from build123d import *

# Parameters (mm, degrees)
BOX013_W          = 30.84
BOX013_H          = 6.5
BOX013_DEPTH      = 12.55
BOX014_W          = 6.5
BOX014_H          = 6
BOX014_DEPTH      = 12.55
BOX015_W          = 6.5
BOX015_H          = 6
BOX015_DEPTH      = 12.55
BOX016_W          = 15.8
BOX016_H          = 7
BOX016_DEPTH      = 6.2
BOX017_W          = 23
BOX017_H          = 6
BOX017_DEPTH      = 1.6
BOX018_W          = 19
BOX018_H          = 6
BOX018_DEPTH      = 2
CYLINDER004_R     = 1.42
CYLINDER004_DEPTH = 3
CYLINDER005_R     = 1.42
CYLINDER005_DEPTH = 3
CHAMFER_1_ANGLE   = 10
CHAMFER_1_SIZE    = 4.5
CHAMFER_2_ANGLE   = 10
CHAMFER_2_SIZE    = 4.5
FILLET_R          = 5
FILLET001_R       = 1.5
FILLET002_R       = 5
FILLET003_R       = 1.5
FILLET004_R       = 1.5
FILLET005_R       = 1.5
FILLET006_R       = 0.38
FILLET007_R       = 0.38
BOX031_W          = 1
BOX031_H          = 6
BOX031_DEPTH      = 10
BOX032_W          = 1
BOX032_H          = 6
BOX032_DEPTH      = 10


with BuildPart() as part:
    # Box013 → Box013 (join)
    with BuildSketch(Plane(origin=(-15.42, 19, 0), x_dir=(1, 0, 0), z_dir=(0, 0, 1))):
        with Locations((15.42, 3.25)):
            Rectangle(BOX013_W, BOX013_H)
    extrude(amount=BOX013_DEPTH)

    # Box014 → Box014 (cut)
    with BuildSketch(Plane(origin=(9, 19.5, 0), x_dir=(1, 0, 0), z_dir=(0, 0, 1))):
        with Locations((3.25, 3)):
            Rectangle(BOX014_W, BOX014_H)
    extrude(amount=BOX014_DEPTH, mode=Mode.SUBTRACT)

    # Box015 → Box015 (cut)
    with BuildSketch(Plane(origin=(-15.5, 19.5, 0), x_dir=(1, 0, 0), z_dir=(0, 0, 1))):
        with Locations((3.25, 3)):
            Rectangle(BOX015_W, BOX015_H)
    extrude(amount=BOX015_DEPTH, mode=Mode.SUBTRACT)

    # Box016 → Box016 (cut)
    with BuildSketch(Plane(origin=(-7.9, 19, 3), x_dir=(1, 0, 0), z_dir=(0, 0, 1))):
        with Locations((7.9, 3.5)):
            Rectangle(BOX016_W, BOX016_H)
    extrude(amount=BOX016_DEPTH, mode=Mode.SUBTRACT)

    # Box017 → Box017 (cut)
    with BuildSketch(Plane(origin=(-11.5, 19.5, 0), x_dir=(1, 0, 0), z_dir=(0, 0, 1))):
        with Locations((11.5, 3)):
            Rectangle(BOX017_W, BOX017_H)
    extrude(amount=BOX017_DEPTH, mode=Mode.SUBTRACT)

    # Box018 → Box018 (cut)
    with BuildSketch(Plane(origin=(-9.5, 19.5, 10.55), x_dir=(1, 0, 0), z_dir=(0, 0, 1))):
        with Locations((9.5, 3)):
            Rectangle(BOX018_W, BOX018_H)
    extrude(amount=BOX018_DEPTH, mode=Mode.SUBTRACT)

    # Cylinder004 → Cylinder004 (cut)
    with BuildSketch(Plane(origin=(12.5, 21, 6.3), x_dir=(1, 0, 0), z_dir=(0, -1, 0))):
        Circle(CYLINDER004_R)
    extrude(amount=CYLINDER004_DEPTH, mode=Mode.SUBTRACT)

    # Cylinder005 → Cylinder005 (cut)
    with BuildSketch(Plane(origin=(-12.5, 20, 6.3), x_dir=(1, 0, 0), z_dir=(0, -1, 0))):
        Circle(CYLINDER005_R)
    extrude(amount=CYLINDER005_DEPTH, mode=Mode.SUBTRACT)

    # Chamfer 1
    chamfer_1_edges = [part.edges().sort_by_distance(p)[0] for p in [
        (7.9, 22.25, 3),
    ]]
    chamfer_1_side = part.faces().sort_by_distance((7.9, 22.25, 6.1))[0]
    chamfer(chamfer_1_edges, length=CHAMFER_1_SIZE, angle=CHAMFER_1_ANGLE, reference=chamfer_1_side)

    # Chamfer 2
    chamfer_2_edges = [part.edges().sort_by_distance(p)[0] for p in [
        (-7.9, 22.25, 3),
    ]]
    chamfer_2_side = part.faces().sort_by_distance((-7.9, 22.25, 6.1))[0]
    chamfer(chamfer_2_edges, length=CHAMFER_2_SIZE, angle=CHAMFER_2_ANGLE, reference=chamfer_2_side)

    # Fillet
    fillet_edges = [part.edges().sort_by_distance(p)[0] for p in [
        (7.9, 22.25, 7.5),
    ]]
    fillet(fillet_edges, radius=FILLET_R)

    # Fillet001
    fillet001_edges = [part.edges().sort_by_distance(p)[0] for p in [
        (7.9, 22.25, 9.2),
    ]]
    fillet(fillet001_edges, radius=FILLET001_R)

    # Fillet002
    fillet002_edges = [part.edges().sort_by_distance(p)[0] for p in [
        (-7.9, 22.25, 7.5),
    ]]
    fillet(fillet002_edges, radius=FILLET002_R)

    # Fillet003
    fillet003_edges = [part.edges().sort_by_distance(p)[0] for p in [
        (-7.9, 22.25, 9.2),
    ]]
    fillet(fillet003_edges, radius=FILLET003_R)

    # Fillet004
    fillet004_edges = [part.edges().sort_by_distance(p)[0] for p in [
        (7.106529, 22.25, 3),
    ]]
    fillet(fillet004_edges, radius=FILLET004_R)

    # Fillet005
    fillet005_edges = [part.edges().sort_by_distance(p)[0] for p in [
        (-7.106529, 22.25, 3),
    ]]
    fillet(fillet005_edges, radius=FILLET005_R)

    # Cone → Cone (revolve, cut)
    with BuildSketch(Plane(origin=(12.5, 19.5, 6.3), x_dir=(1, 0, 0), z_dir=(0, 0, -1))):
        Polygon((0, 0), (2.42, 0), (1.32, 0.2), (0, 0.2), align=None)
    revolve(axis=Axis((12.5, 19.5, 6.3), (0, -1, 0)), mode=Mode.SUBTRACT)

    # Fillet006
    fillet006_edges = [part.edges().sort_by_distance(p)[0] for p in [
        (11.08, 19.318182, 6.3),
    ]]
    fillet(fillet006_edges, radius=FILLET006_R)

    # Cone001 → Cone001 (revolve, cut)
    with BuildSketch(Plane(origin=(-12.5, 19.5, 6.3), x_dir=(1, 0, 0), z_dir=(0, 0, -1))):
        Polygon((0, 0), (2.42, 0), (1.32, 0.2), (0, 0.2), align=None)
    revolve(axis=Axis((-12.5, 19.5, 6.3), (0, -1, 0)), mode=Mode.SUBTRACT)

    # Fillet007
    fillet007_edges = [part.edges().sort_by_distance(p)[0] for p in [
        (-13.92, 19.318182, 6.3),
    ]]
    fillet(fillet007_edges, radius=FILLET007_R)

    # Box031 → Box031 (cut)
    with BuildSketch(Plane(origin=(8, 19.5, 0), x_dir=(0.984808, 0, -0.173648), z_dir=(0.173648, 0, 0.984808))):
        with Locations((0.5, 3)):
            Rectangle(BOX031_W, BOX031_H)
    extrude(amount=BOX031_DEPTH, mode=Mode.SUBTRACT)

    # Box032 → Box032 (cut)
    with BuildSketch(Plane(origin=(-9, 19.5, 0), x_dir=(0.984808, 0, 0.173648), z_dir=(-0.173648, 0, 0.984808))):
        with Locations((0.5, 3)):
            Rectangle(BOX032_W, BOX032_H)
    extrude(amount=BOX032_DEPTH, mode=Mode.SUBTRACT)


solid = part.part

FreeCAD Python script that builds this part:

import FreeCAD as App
import Part
import Sketcher


def edges_at(feature, points):
    """Names of the edges that pass closest to the given points."""
    edges = feature.Shape.Edges
    near = lambda p: min(range(len(edges)), key=lambda i: edges[i].distToShape(Part.Vertex(*p))[0])
    return sorted({f"Edge{near(p) + 1}" for p in points})


def add_polygon(sketch, points):
    """Adds a closed chain of lines whose ends are joined by coincident constraints."""
    first, n = sketch.GeometryCount, len(points)
    for a, b in zip(points, points[1:] + points[:1]):
        sketch.addGeometry(Part.LineSegment(App.Vector(*a, 0), App.Vector(*b, 0)), False)
    for i in range(n):
        sketch.addConstraint(Sketcher.Constraint("Coincident", first + i, 2, first + (i + 1) % n, 1))

doc = App.newDocument("Part")
body = doc.addObject("PartDesign::Body", "Body")

# Sketch on XY plane
sketch1 = body.newObject("Sketcher::SketchObject", "Sketch")
sketch1.AttachmentSupport = (doc.getObject("XY_Plane"), [""])
sketch1.MapMode = "FlatFace"
add_polygon(sketch1, [(-15.42, 25.5), (-15.42, 19), (15.42, 19), (15.42, 25.5)])  # lines 0-3
sketch1.addConstraint([
    Sketcher.Constraint("Vertical", 0),
    Sketcher.Constraint("Horizontal", 1),
    Sketcher.Constraint("Vertical", 2),
    Sketcher.Constraint("Horizontal", 3),
    Sketcher.Constraint("DistanceY", 0, 2, 0, 1, 6.5),
    Sketcher.Constraint("DistanceY", -1, 1, 0, 2, 19.0),
    Sketcher.Constraint("DistanceX", 1, 1, 1, 2, 30.84),
    Sketcher.Constraint("DistanceX", 0, 2, -1, 1, 15.42),
])
pad1 = body.newObject("PartDesign::Pad", "Pad")
pad1.Profile = sketch1
pad1.Length = 12.55

# Sketch on XY plane
sketch2 = body.newObject("Sketcher::SketchObject", "Sketch001")
sketch2.AttachmentSupport = (doc.getObject("XY_Plane"), [""])
sketch2.MapMode = "FlatFace"
add_polygon(sketch2, [(9, 25.5), (9, 19.5), (15.5, 19.5), (15.5, 25.5)])  # lines 0-3
sketch2.addConstraint([
    Sketcher.Constraint("Vertical", 0),
    Sketcher.Constraint("Horizontal", 1),
    Sketcher.Constraint("Vertical", 2),
    Sketcher.Constraint("Horizontal", 3),
    Sketcher.Constraint("DistanceY", 0, 2, 0, 1, 6.0),
    Sketcher.Constraint("DistanceX", 1, 1, 1, 2, 6.5),
    Sketcher.Constraint("DistanceX", -1, 1, 0, 2, 9.0),
    Sketcher.Constraint("DistanceY", -1, 1, 0, 2, 19.5),
])
pocket1 = body.newObject("PartDesign::Pocket", "Pocket")
pocket1.Profile = sketch2
pocket1.Length = 12.55
pocket1.Reversed = True

# Sketch on XY plane
sketch3 = body.newObject("Sketcher::SketchObject", "Sketch002")
sketch3.AttachmentSupport = (doc.getObject("XY_Plane"), [""])
sketch3.MapMode = "FlatFace"
add_polygon(sketch3, [(-15.5, 25.5), (-15.5, 19.5), (-9, 19.5), (-9, 25.5)])  # lines 0-3
sketch3.addConstraint([
    Sketcher.Constraint("Vertical", 0),
    Sketcher.Constraint("Horizontal", 1),
    Sketcher.Constraint("Vertical", 2),
    Sketcher.Constraint("Horizontal", 3),
    Sketcher.Constraint("DistanceY", 0, 2, 0, 1, 6.0),
    Sketcher.Constraint("DistanceX", 1, 1, 1, 2, 6.5),
    Sketcher.Constraint("DistanceX", 1, 2, -1, 1, 9.0),
    Sketcher.Constraint("DistanceY", -1, 1, 0, 2, 19.5),
])
pocket2 = body.newObject("PartDesign::Pocket", "Pocket001")
pocket2.Profile = sketch3
pocket2.Length = 12.55
pocket2.Reversed = True

# Sketch on XY plane
sketch4 = body.newObject("Sketcher::SketchObject", "Sketch003")
sketch4.AttachmentSupport = (doc.getObject("XY_Plane"), [""])
sketch4.MapMode = "FlatFace"
sketch4.AttachmentOffset = App.Placement(App.Vector(0, 0, 3), App.Rotation())
add_polygon(sketch4, [(-7.9, 26), (-7.9, 19), (7.9, 19), (7.9, 26)])  # lines 0-3
sketch4.addConstraint([
    Sketcher.Constraint("Vertical", 0),
    Sketcher.Constraint("Horizontal", 1),
    Sketcher.Constraint("Vertical", 2),
    Sketcher.Constraint("Horizontal", 3),
    Sketcher.Constraint("DistanceY", 0, 2, 0, 1, 7.0),
    Sketcher.Constraint("DistanceX", 1, 1, 1, 2, 15.8),
    Sketcher.Constraint("DistanceY", -1, 1, 0, 2, 19.0),
    Sketcher.Constraint("DistanceX", 0, 2, -1, 1, 7.9),
])
pocket3 = body.newObject("PartDesign::Pocket", "Pocket002")
pocket3.Profile = sketch4
pocket3.Length = 6.2
pocket3.Reversed = True

# Sketch on XY plane
sketch5 = body.newObject("Sketcher::SketchObject", "Sketch004")
sketch5.AttachmentSupport = (doc.getObject("XY_Plane"), [""])
sketch5.MapMode = "FlatFace"
add_polygon(sketch5, [(-11.5, 25.5), (-11.5, 19.5), (11.5, 19.5), (11.5, 25.5)])  # lines 0-3
sketch5.addConstraint([
    Sketcher.Constraint("Vertical", 0),
    Sketcher.Constraint("Horizontal", 1),
    Sketcher.Constraint("Vertical", 2),
    Sketcher.Constraint("Horizontal", 3),
    Sketcher.Constraint("DistanceX", 1, 1, 1, 2, 23.0),
    Sketcher.Constraint("DistanceY", 0, 2, 0, 1, 6.0),
    Sketcher.Constraint("DistanceX", 0, 2, -1, 1, 11.5),
    Sketcher.Constraint("DistanceY", -1, 1, 0, 2, 19.5),
])
pocket4 = body.newObject("PartDesign::Pocket", "Pocket003")
pocket4.Profile = sketch5
pocket4.Length = 1.6
pocket4.Reversed = True

# Sketch on XY plane
sketch6 = body.newObject("Sketcher::SketchObject", "Sketch005")
sketch6.AttachmentSupport = (doc.getObject("XY_Plane"), [""])
sketch6.MapMode = "FlatFace"
sketch6.AttachmentOffset = App.Placement(App.Vector(0, 0, 10.55), App.Rotation())
add_polygon(sketch6, [(-9.5, 25.5), (-9.5, 19.5), (9.5, 19.5), (9.5, 25.5)])  # lines 0-3
sketch6.addConstraint([
    Sketcher.Constraint("Vertical", 0),
    Sketcher.Constraint("Horizontal", 1),
    Sketcher.Constraint("Vertical", 2),
    Sketcher.Constraint("Horizontal", 3),
    Sketcher.Constraint("DistanceX", 1, 1, 1, 2, 19.0),
    Sketcher.Constraint("DistanceY", 0, 2, 0, 1, 6.0),
    Sketcher.Constraint("DistanceX", 0, 2, -1, 1, 9.5),
    Sketcher.Constraint("DistanceY", -1, 1, 0, 2, 19.5),
])
pocket5 = body.newObject("PartDesign::Pocket", "Pocket004")
pocket5.Profile = sketch6
pocket5.Length = 2
pocket5.Reversed = True

# Sketch on XZ plane
sketch7 = body.newObject("Sketcher::SketchObject", "Sketch006")
sketch7.AttachmentSupport = (doc.getObject("XZ_Plane"), [""])
sketch7.MapMode = "FlatFace"
sketch7.AttachmentOffset = App.Placement(App.Vector(0, 0, -21), App.Rotation())
sketch7.addGeometry(Part.Circle(App.Vector(12.5, 6.3, 0), App.Vector(0, 0, 1), 1.42), False)
sketch7.addConstraint([
    Sketcher.Constraint("Diameter", 0, 2.84),
    Sketcher.Constraint("DistanceX", -1, 1, 0, 3, 12.5),
    Sketcher.Constraint("DistanceY", -1, 1, 0, 3, 6.3),
])
pocket6 = body.newObject("PartDesign::Pocket", "Pocket005")
pocket6.Profile = sketch7
pocket6.Length = 3
pocket6.Reversed = True

# Sketch on XZ plane
sketch8 = body.newObject("Sketcher::SketchObject", "Sketch007")
sketch8.AttachmentSupport = (doc.getObject("XZ_Plane"), [""])
sketch8.MapMode = "FlatFace"
sketch8.AttachmentOffset = App.Placement(App.Vector(0, 0, -20), App.Rotation())
sketch8.addGeometry(Part.Circle(App.Vector(-12.5, 6.3, 0), App.Vector(0, 0, 1), 1.42), False)
sketch8.addConstraint([
    Sketcher.Constraint("Diameter", 0, 2.84),
    Sketcher.Constraint("DistanceX", 0, 3, -1, 1, 12.5),
    Sketcher.Constraint("DistanceY", -1, 1, 0, 3, 6.3),
])
pocket7 = body.newObject("PartDesign::Pocket", "Pocket006")
pocket7.Profile = sketch8
pocket7.Length = 3
pocket7.Reversed = True
doc.recompute()

chamfer = body.newObject("PartDesign::Chamfer", "Chamfer")
chamfer.Base = (pocket7, edges_at(pocket7, [(7.9, 22.25, 3)]))
chamfer.ChamferType = "Distance and Angle"
chamfer.Size = 4.5
chamfer.Angle = 10
chamfer.FlipDirection = True
doc.recompute()

chamfer2 = body.newObject("PartDesign::Chamfer", "Chamfer001")
chamfer2.Base = (chamfer, edges_at(chamfer, [(-7.9, 22.25, 3)]))
chamfer2.ChamferType = "Distance and Angle"
chamfer2.Size = 4.5
chamfer2.Angle = 10
chamfer2.FlipDirection = True
doc.recompute()

fillet = body.newObject("PartDesign::Fillet", "Fillet")
fillet.Base = (chamfer2, edges_at(chamfer2, [(7.9, 22.25, 7.5)]))
fillet.Radius = 5
doc.recompute()

fillet2 = body.newObject("PartDesign::Fillet", "Fillet001")
fillet2.Base = (fillet, edges_at(fillet, [(7.9, 22.25, 9.2)]))
fillet2.Radius = 1.5
doc.recompute()

fillet3 = body.newObject("PartDesign::Fillet", "Fillet002")
fillet3.Base = (fillet2, edges_at(fillet2, [(-7.9, 22.25, 7.5)]))
fillet3.Radius = 5
doc.recompute()

fillet4 = body.newObject("PartDesign::Fillet", "Fillet003")
fillet4.Base = (fillet3, edges_at(fillet3, [(-7.9, 22.25, 9.2)]))
fillet4.Radius = 1.5
doc.recompute()

fillet5 = body.newObject("PartDesign::Fillet", "Fillet004")
fillet5.Base = (fillet4, edges_at(fillet4, [(7.107, 22.25, 3)]))
fillet5.Radius = 1.5
doc.recompute()

fillet6 = body.newObject("PartDesign::Fillet", "Fillet005")
fillet6.Base = (fillet5, edges_at(fillet5, [(-7.107, 22.25, 3)]))
fillet6.Radius = 1.5

# Sketch on XY plane
sketch9 = body.newObject("Sketcher::SketchObject", "Sketch008")
sketch9.AttachmentSupport = (doc.getObject("XY_Plane"), [""])
sketch9.MapMode = "FlatFace"
sketch9.AttachmentOffset = App.Placement(App.Vector(0, 0, 6.3), App.Rotation())
add_polygon(sketch9, [(12.5, 19.5), (14.92, 19.5), (13.82, 19.3), (12.5, 19.3)])  # lines 0-3
sketch9.addGeometry(Part.LineSegment(App.Vector(12.5, 19.5, 0), App.Vector(12.5, 19.3, 0)), True)  # axis
sketch9.addConstraint([
    Sketcher.Constraint("Horizontal", 0),
    Sketcher.Constraint("Horizontal", 2),
    Sketcher.Constraint("Vertical", 3),
    Sketcher.Constraint("Vertical", 4),
    Sketcher.Constraint("Coincident", 4, 1, 3, 2),
    Sketcher.Constraint("Horizontal", 1, 2, 4, 2),
    Sketcher.Constraint("DistanceY", 3, 1, 3, 2, 0.2),
    Sketcher.Constraint("DistanceX", 0, 1, 0, 2, 2.42),
    Sketcher.Constraint("DistanceX", 2, 2, 2, 1, 1.32),
    Sketcher.Constraint("DistanceY", -1, 1, 0, 2, 19.5),
    Sketcher.Constraint("DistanceX", -1, 1, 2, 2, 12.5),
])
groove = body.newObject("PartDesign::Groove", "Groove")
groove.Profile = sketch9
groove.ReferenceAxis = (sketch9, ["Axis0"])
groove.Angle = 360
doc.recompute()

fillet7 = body.newObject("PartDesign::Fillet", "Fillet006")
fillet7.Base = (groove, edges_at(groove, [(11.08, 19.318, 6.3)]))
fillet7.Radius = 0.38

# Sketch on XY plane
sketch10 = body.newObject("Sketcher::SketchObject", "Sketch009")
sketch10.AttachmentSupport = (doc.getObject("XY_Plane"), [""])
sketch10.MapMode = "FlatFace"
sketch10.AttachmentOffset = App.Placement(App.Vector(0, 0, 6.3), App.Rotation())
add_polygon(sketch10, [(-12.5, 19.5), (-10.08, 19.5), (-11.18, 19.3), (-12.5, 19.3)])  # lines 0-3
sketch10.addGeometry(Part.LineSegment(App.Vector(-12.5, 19.5, 0), App.Vector(-12.5, 19.3, 0)), True)  # axis
sketch10.addConstraint([
    Sketcher.Constraint("Horizontal", 0),
    Sketcher.Constraint("Horizontal", 2),
    Sketcher.Constraint("Vertical", 3),
    Sketcher.Constraint("Vertical", 4),
    Sketcher.Constraint("Coincident", 4, 1, 3, 2),
    Sketcher.Constraint("Horizontal", 1, 2, 4, 2),
    Sketcher.Constraint("DistanceY", 3, 1, 3, 2, 0.2),
    Sketcher.Constraint("DistanceX", 0, 1, 0, 2, 2.42),
    Sketcher.Constraint("DistanceX", 2, 2, 2, 1, 1.32),
    Sketcher.Constraint("DistanceY", -1, 1, 0, 2, 19.5),
    Sketcher.Constraint("DistanceX", 2, 2, -1, 1, 12.5),
])
groove2 = body.newObject("PartDesign::Groove", "Groove001")
groove2.Profile = sketch10
groove2.ReferenceAxis = (sketch10, ["Axis0"])
groove2.Angle = 360
doc.recompute()

fillet8 = body.newObject("PartDesign::Fillet", "Fillet007")
fillet8.Base = (groove2, edges_at(groove2, [(-13.92, 19.318, 6.3)]))
fillet8.Radius = 0.38

# Sketch on an angled plane
sketch11 = body.newObject("Sketcher::SketchObject", "Sketch010")
sketch11.Placement = App.Placement(App.Vector(8, 19.5, 0), App.Rotation(App.Vector(0.984807791, 0, -0.173647963), App.Vector(0, 1, 0), App.Vector(0.173647963, 0, 0.984807791), "ZXY"))
add_polygon(sketch11, [(0, 6), (0, 0), (1, 0), (1, 6)])  # lines 0-3
sketch11.addConstraint([
    Sketcher.Constraint("Vertical", 0),
    Sketcher.Constraint("Horizontal", 1),
    Sketcher.Constraint("Vertical", 2),
    Sketcher.Constraint("Horizontal", 3),
    Sketcher.Constraint("Coincident", 0, 2, -1, 1),
    Sketcher.Constraint("DistanceX", 1, 1, 1, 2, 1.0),
    Sketcher.Constraint("DistanceY", 0, 2, 0, 1, 6.0),
])
pocket8 = body.newObject("PartDesign::Pocket", "Pocket007")
pocket8.Profile = sketch11
pocket8.Length = 10
pocket8.Reversed = True

# Sketch on an angled plane
sketch12 = body.newObject("Sketcher::SketchObject", "Sketch011")
sketch12.Placement = App.Placement(App.Vector(-9, 19.5, 0), App.Rotation(App.Vector(0.984807791, 0, 0.173647963), App.Vector(0, 1, 0), App.Vector(-0.173647963, 0, 0.984807791), "ZXY"))
add_polygon(sketch12, [(0, 6), (0, 0), (1, 0), (1, 6)])  # lines 0-3
sketch12.addConstraint([
    Sketcher.Constraint("Vertical", 0),
    Sketcher.Constraint("Horizontal", 1),
    Sketcher.Constraint("Vertical", 2),
    Sketcher.Constraint("Horizontal", 3),
    Sketcher.Constraint("Coincident", 0, 2, -1, 1),
    Sketcher.Constraint("DistanceX", 1, 1, 1, 2, 1.0),
    Sketcher.Constraint("DistanceY", 0, 2, 0, 1, 6.0),
])
pocket9 = body.newObject("PartDesign::Pocket", "Pocket008")
pocket9.Profile = sketch12
pocket9.Length = 10
pocket9.Reversed = True

doc.recompute()
